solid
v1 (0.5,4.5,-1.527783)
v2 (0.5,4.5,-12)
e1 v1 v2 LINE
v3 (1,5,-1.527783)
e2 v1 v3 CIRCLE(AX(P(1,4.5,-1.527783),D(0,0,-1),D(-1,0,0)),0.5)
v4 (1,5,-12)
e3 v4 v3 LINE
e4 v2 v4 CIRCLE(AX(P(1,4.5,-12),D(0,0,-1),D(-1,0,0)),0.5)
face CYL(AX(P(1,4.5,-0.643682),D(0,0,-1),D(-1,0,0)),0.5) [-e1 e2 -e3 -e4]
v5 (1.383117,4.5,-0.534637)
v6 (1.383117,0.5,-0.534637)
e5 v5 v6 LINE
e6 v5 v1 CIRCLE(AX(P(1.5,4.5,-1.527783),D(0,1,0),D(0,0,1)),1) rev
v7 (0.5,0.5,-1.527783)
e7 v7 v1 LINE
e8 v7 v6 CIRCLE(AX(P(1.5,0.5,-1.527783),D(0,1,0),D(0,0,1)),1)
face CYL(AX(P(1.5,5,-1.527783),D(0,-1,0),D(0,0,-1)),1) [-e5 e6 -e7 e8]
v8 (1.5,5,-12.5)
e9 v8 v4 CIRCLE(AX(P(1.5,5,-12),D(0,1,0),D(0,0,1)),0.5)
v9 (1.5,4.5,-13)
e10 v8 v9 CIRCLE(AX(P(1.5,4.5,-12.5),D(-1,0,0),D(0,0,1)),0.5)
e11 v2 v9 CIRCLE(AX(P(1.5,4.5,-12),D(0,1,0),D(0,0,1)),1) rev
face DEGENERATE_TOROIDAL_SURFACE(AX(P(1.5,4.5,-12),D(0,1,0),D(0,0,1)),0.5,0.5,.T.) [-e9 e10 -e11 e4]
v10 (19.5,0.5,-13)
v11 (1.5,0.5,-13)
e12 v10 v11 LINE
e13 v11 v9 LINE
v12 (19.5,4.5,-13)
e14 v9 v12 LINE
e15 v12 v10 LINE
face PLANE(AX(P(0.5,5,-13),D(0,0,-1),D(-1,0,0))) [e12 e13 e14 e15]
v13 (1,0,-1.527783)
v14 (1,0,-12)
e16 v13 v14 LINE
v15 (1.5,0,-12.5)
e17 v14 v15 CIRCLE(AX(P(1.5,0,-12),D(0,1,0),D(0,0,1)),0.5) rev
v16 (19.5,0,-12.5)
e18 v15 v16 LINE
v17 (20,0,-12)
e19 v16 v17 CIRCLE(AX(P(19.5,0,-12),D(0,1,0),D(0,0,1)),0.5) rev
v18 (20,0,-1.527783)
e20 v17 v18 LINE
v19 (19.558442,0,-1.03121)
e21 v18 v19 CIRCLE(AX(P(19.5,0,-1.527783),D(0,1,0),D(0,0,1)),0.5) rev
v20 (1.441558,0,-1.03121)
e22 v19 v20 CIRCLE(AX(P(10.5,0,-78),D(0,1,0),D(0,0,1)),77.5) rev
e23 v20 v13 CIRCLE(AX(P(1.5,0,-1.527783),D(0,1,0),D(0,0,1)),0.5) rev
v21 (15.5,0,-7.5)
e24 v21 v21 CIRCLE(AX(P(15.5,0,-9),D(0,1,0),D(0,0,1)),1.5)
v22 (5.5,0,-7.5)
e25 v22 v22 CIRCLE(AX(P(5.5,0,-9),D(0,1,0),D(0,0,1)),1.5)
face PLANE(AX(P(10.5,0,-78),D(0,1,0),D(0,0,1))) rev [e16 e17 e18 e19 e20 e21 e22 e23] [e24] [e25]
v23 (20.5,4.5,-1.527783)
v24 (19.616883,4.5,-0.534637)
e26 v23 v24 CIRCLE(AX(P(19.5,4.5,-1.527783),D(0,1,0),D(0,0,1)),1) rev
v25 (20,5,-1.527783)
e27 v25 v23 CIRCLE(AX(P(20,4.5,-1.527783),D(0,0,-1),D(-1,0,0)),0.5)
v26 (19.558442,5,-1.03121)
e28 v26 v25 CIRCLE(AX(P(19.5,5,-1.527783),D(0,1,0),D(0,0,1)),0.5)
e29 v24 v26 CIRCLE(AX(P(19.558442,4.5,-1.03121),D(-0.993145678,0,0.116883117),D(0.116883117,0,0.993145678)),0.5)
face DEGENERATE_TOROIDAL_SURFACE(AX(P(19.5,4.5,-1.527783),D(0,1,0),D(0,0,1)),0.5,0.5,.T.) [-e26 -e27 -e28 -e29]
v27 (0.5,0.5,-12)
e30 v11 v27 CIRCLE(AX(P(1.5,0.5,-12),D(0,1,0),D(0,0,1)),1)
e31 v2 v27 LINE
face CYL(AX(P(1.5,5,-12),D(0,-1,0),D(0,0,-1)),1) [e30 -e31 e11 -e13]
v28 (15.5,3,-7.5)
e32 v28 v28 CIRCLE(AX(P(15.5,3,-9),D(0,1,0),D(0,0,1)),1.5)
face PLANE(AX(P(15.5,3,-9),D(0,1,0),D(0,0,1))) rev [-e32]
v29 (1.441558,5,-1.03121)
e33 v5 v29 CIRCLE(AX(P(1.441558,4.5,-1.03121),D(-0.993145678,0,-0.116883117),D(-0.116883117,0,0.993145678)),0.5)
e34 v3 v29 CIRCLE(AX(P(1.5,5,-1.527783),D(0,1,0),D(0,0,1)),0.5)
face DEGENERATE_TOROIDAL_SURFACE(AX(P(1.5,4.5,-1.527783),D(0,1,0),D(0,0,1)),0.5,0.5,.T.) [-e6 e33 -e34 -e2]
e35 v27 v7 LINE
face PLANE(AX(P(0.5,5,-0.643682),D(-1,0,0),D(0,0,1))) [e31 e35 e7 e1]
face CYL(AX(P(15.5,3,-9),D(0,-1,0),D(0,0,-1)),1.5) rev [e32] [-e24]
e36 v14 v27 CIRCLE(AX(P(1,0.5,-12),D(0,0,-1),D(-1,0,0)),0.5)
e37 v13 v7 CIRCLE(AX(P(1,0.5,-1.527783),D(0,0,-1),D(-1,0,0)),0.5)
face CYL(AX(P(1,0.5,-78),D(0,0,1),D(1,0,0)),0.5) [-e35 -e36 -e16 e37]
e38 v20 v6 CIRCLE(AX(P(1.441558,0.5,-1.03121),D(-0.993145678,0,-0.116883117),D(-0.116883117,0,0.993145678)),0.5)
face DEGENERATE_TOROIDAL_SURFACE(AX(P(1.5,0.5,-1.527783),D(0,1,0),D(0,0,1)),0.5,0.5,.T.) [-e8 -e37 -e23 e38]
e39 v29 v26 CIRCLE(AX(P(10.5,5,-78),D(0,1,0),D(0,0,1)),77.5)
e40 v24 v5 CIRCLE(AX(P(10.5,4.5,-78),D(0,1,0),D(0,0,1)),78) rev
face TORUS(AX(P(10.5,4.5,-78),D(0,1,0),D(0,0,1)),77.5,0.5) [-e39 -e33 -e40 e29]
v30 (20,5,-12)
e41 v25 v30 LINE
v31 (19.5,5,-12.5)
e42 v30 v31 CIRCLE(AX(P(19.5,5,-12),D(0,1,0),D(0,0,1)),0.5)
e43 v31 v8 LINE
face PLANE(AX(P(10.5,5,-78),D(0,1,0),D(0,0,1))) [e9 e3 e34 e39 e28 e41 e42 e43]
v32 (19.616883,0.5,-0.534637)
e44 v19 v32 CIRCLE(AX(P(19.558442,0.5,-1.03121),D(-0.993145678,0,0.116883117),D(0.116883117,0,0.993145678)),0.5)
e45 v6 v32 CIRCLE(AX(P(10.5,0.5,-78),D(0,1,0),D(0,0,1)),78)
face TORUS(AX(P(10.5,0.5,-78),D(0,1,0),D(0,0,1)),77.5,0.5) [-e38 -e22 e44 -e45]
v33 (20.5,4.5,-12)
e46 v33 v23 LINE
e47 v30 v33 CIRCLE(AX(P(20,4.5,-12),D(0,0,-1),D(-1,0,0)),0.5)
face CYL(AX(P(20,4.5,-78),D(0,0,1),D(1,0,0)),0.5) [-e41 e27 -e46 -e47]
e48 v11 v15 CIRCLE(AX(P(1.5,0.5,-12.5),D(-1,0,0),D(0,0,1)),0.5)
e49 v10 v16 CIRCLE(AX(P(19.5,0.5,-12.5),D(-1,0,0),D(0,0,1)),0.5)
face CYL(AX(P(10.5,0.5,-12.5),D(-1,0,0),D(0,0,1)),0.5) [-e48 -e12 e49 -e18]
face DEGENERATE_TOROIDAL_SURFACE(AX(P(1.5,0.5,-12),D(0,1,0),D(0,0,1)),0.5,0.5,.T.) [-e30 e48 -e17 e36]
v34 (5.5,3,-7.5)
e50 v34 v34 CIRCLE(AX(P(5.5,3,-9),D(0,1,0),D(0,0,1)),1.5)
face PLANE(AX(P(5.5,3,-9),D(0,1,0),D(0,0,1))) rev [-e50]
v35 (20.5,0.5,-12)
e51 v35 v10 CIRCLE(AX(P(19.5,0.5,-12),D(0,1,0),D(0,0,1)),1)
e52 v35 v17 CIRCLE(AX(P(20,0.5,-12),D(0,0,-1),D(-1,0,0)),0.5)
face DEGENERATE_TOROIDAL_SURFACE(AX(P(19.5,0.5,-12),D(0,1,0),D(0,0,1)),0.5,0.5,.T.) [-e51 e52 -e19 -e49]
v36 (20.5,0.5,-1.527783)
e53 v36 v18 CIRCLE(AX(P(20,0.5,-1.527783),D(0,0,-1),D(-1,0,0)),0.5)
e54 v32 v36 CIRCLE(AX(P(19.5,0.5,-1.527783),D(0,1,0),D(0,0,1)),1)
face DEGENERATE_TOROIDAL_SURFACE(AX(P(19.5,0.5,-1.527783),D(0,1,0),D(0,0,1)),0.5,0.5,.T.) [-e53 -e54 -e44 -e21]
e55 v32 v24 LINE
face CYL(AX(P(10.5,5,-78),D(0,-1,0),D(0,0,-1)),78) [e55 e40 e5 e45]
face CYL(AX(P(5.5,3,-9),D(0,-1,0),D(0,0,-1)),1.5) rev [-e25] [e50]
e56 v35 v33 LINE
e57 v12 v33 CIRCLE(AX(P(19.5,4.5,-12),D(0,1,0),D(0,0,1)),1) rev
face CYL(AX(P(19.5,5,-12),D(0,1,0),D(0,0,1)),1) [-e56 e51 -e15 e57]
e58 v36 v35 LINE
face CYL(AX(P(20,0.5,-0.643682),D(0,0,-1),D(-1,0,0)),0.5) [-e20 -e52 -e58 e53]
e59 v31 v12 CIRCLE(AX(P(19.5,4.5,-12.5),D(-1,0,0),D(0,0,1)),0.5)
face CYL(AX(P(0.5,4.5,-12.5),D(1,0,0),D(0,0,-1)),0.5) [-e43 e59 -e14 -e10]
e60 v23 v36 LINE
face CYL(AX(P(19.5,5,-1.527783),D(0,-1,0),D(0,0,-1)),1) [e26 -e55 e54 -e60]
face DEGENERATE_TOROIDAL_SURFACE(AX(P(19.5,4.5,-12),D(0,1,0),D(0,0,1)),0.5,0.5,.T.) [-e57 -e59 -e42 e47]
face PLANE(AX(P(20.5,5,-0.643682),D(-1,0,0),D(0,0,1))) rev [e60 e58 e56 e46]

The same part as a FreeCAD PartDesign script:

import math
import FreeCAD as App
import Part
import Sketcher

V = App.Vector
Q = App.Units.Quantity


def edges_at(feature, points):
    """Names of the edges that pass closest to the given points."""
    edges = feature.Shape.Edges
    near = lambda p: min(range(len(edges)), key=lambda i: edges[i].distToShape(Part.Vertex(*p))[0])
    return sorted({f"Edge{near(p) + 1}" for p in points})

doc = App.newDocument("Part")
body = doc.addObject("PartDesign::Body", "Body")

# Sketch on XZ plane
sketch1 = body.newObject("Sketcher::SketchObject", "Sketch")
sketch1.AttachmentSupport = (doc.getObject("XZ_Plane"), [""])
sketch1.MapMode = "FlatFace"
sketch1.addGeometry([
    Part.LineSegment(V(0, -13, 0), V(0, -1, 0)),
    Part.ArcOfCircle(Part.Circle(V(10, -78, 0), V(0, 0, 1), 78), math.radians(82.63), math.radians(97.37)),
    Part.LineSegment(V(20, -1, 0), V(20, -13, 0)),
    Part.LineSegment(V(20, -13, 0), V(0, -13, 0)),
], False)
sketch1.addConstraint([
    Sketcher.Constraint("Coincident", 0, 2, 1, 2),
    Sketcher.Constraint("Coincident", 1, 1, 2, 1),
    Sketcher.Constraint("Coincident", 2, 2, 3, 1),
    Sketcher.Constraint("Coincident", 3, 2, 0, 1),
    Sketcher.Constraint("Vertical", 0),
    Sketcher.Constraint("Vertical", 2),
    Sketcher.Constraint("Horizontal", 3),
    Sketcher.Constraint("Horizontal", 0, 2, 1, 1),
    Sketcher.Constraint("Radius", 1, Q("78 mm")),
    Sketcher.Constraint("DistanceX", 3, 2, 3, 1, Q("20 mm")),
    Sketcher.Constraint("DistanceY", 1, 3, -1, 1, Q("78 mm")),
    Sketcher.Constraint("DistanceY", 2, 2, -1, 1, Q("13 mm")),
    Sketcher.Constraint("DistanceX", -1, 1, 1, 3, Q("10.5 mm")),
])
pad1 = body.newObject("PartDesign::Pad", "Pad")
pad1.Profile = sketch1
pad1.Length = 5
pad1.Reversed = True

# Sketch on XZ plane
sketch2 = body.newObject("Sketcher::SketchObject", "Sketch001")
sketch2.AttachmentSupport = (doc.getObject("XZ_Plane"), [""])
sketch2.MapMode = "FlatFace"
sketch2.addGeometry([
    Part.Circle(V(5.5, -9, 0), V(0, 0, 1), 1.5),
    Part.Circle(V(15.5, -9, 0), V(0, 0, 1), 1.5),
], False)
sketch2.addConstraint([
    Sketcher.Constraint("Equal", 0, 1),
    Sketcher.Constraint("Horizontal", 0, 3, 1, 3),
    Sketcher.Constraint("Diameter", 0, Q("3 mm")),
    Sketcher.Constraint("DistanceY", 0, 3, -1, 1, Q("9 mm")),
    Sketcher.Constraint("DistanceX", 0, 3, 1, 3, Q("10 mm")),
    Sketcher.Constraint("DistanceX", -1, 1, 0, 3, Q("5.5 mm")),
])
pocket1 = body.newObject("PartDesign::Pocket", "Pocket")
pocket1.Profile = sketch2
pocket1.Length = 3
doc.recompute()

fillet = body.newObject("PartDesign::Fillet", "Fillet")
fillet.Base = (pocket1, edges_at(pocket1, [
    (0.5, 2.5, -0.644),
    (20.5, 2.5, -0.644),
    (20.5, 2.5, -13),
    (0.5, 2.5, -13),
]))
fillet.Radius = 1
doc.recompute()

fillet2 = body.newObject("PartDesign::Fillet", "Fillet001")
fillet2.Base = (fillet, edges_at(fillet, [
    (10.5, 0, -13),
    (10.5, 5, -13),
    (0.5, 0, -6.764),
    (20.5, 0, -6.764),
    (10.5, 0, 0),
    (0.753, 0, -0.863),
    (20.247, 0, -0.863),
    (0.793, 0, -12.707),
    (20.207, 0, -12.707),
    (20.5, 5, -6.764),
    (0.5, 5, -6.764),
    (10.5, 5, 0),
    (0.753, 5, -0.863),
    (20.247, 5, -0.863),
    (0.793, 5, -12.707),
    (20.207, 5, -12.707),
]))
fillet2.Radius = 0.5

doc.recompute()
